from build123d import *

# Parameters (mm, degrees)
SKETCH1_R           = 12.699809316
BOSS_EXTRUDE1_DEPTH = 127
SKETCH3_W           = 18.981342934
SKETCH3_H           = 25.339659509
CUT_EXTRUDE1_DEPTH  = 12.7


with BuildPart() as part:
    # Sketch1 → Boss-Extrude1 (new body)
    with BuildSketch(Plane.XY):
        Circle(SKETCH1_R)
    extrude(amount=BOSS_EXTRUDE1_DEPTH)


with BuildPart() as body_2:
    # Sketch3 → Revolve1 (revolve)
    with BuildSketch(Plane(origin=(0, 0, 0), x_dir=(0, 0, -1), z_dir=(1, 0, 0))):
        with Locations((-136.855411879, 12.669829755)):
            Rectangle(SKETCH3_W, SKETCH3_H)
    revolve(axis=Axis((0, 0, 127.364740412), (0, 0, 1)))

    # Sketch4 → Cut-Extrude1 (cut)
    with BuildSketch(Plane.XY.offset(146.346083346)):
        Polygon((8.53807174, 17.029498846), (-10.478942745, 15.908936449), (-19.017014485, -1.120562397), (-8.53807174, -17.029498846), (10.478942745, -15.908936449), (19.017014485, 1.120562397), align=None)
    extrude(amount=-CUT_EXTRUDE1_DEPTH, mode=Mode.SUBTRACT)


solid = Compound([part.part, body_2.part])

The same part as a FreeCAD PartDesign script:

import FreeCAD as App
import Part
import Sketcher
Q = App.Units.Quantity

doc = App.newDocument("Part")
body = doc.addObject("PartDesign::Body", "Body")

sketch1 = body.newObject("Sketcher::SketchObject", "Sketch")
sketch1.AttachmentSupport = (doc.getObject("XY_Plane"), [""])
sketch1.MapMode = "FlatFace"
sketch1.addGeometry(Part.Circle(App.Vector(0, 0, 0), App.Vector(0, 0, 1), 13), False)
sketch1.addConstraint([
    Sketcher.Constraint("Coincident", 0, 3, -1, 1),
    Sketcher.Constraint("Diameter", 0, 25.399619),
])
pad1 = body.newObject("PartDesign::Pad", "Pad")
pad1.Profile = sketch1
pad1.Length = Q("5 in")
body2 = doc.addObject("PartDesign::Body", "Body001")

sketch2 = body2.newObject("Sketcher::SketchObject", "Sketch001")
sketch2.AttachmentSupport = (doc.getObject("YZ_Plane001"), [""])
sketch2.MapMode = "FlatFace"
sketch2.addGeometry([
    Part.LineSegment(App.Vector(25, 146, 0), App.Vector(0, 146, 0)),
    Part.LineSegment(App.Vector(0, 146, 0), App.Vector(0, 127, 0)),
    Part.LineSegment(App.Vector(0, 127, 0), App.Vector(25, 127, 0)),
    Part.LineSegment(App.Vector(25, 127, 0), App.Vector(25, 146, 0)),
], False)
sketch2.addConstraint([
    Sketcher.Constraint("Coincident", 0, 2, 1, 1),
    Sketcher.Constraint("Coincident", 1, 2, 2, 1),
    Sketcher.Constraint("Coincident", 2, 2, 3, 1),
    Sketcher.Constraint("Coincident", 3, 2, 0, 1),
    Sketcher.Constraint("Horizontal", 0),
    Sketcher.Constraint("Vertical", 1),
    Sketcher.Constraint("Horizontal", 2),
    Sketcher.Constraint("Vertical", 3),
    Sketcher.Constraint("PointOnObject", 0, 2, -2),
    Sketcher.Constraint("DistanceX", 0, 2, 0, 1, 25.33966),
    Sketcher.Constraint("DistanceY", 1, 2, 1, 1, 18.981343),
    Sketcher.Constraint("DistanceY", -1, 1, 1, 2, 127.36474),
])
revolution = body2.newObject("PartDesign::Revolution", "Revolution")
revolution.Profile = sketch2
revolution.ReferenceAxis = (sketch2, ["V_Axis"])
revolution.Angle = 360

sketch3 = body2.newObject("Sketcher::SketchObject", "Sketch002")
sketch3.AttachmentSupport = (doc.getObject("XY_Plane001"), [""])
sketch3.MapMode = "FlatFace"
sketch3.AttachmentOffset = App.Placement(App.Vector(0, 0, 146.346083), App.Rotation())
sketch3.addGeometry([
    Part.LineSegment(App.Vector(9, 17, 0), App.Vector(-10, 16, 0)),
    Part.LineSegment(App.Vector(-10, 16, 0), App.Vector(-19, -1, 0)),
    Part.LineSegment(App.Vector(-19, -1, 0), App.Vector(-9, -17, 0)),
    Part.LineSegment(App.Vector(-9, -17, 0), App.Vector(10, -16, 0)),
    Part.LineSegment(App.Vector(10, -16, 0), App.Vector(19, 1, 0)),
    Part.LineSegment(App.Vector(19, 1, 0), App.Vector(9, 17, 0)),
], False)
sketch3.addConstraint([
    Sketcher.Constraint("Coincident", 0, 2, 1, 1),
    Sketcher.Constraint("Coincident", 1, 2, 2, 1),
    Sketcher.Constraint("Coincident", 2, 2, 3, 1),
    Sketcher.Constraint("Coincident", 3, 2, 4, 1),
    Sketcher.Constraint("Coincident", 4, 2, 5, 1),
    Sketcher.Constraint("Coincident", 5, 2, 0, 1),
    Sketcher.Constraint("Symmetric", 0, 2, 3, 2, -1, 1),
    Sketcher.Constraint("Symmetric", 1, 2, 4, 2, -1, 1),
    Sketcher.Constraint("Symmetric", 2, 2, 5, 2, -1, 1),
    Sketcher.Constraint("Equal", 0, 1),
    Sketcher.Constraint("Equal", 1, 2),
    Sketcher.Constraint("Distance", 0, Q("0.75 in")),
    Sketcher.Constraint("DistanceY", 2, 2, -1, 1, 17.029499),
    Sketcher.Constraint("DistanceY", 1, 2, 0, 2, 17.029499),
    Sketcher.Constraint("DistanceX", 2, 2, -1, 1, 8.538072),
])
pocket1 = body2.newObject("PartDesign::Pocket", "Pocket")
pocket1.Profile = sketch3
pocket1.Length = Q("0.5 in")

doc.recompute()
